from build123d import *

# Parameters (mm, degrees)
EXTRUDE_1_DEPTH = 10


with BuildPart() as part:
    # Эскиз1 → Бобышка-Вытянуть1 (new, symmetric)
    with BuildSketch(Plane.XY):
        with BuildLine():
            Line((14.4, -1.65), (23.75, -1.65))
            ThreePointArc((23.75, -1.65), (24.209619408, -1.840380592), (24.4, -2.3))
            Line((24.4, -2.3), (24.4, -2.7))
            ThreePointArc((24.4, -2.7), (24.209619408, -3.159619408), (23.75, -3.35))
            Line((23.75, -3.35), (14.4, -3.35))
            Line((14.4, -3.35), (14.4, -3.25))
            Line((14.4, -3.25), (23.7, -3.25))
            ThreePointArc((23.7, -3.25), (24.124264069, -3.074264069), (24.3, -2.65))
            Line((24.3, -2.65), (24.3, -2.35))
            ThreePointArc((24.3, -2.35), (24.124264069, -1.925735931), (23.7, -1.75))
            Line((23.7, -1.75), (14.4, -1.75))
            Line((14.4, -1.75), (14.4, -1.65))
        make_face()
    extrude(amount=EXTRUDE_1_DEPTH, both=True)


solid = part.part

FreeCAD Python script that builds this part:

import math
import FreeCAD as App
import Part
import Sketcher
from FreeCAD import Vector
Q = App.Units.Quantity

doc = App.newDocument("Part")
body = doc.addObject("PartDesign::Body", "Body")

# Sketch on XY plane
sketch1 = doc.addObject("Sketcher::SketchObject", "Sketch")
body.addObject(sketch1)
sketch1.AttachmentSupport = (doc.XY_Plane, [""])
sketch1.MapMode = "FlatFace"
sketch1.addGeometry(Part.LineSegment(Vector(23.75, -1.65, 0), Vector(14.4, -1.65, 0)), False)
sketch1.addGeometry(Part.LineSegment(Vector(14.4, -1.65, 0), Vector(14.4, -1.75, 0)), False)
sketch1.addGeometry(Part.LineSegment(Vector(14.4, -1.75, 0), Vector(23.7, -1.75, 0)), False)
sketch1.addGeometry(Part.ArcOfCircle(Part.Circle(Vector(23.7, -2.35, 0), Vector(0, 0, 1), 0.6), math.radians(0), math.radians(90)), False)
sketch1.addGeometry(Part.LineSegment(Vector(24.3, -2.35, 0), Vector(24.3, -2.65, 0)), False)
sketch1.addGeometry(Part.ArcOfCircle(Part.Circle(Vector(23.7, -2.65, 0), Vector(0, 0, 1), 0.6), math.radians(-90), math.radians(0)), False)
sketch1.addGeometry(Part.LineSegment(Vector(23.7, -3.25, 0), Vector(14.4, -3.25, 0)), False)
sketch1.addGeometry(Part.LineSegment(Vector(14.4, -3.25, 0), Vector(14.4, -3.35, 0)), False)
sketch1.addGeometry(Part.LineSegment(Vector(14.4, -3.35, 0), Vector(23.75, -3.35, 0)), False)
sketch1.addGeometry(Part.ArcOfCircle(Part.Circle(Vector(23.75, -2.7, 0), Vector(0, 0, 1), 0.65), math.radians(-90), math.radians(0)), False)
sketch1.addGeometry(Part.LineSegment(Vector(24.4, -2.7, 0), Vector(24.4, -2.3, 0)), False)
sketch1.addGeometry(Part.ArcOfCircle(Part.Circle(Vector(23.75, -2.3, 0), Vector(0, 0, 1), 0.65), math.radians(0), math.radians(90)), False)
sketch1.addConstraint(Sketcher.Constraint("Coincident", 0, 2, 1, 1))
sketch1.addConstraint(Sketcher.Constraint("Coincident", 1, 2, 2, 1))
sketch1.addConstraint(Sketcher.Constraint("Tangent", 2, 2, 3, 2))
sketch1.addConstraint(Sketcher.Constraint("Tangent", 3, 1, 4, 1))
sketch1.addConstraint(Sketcher.Constraint("Tangent", 4, 2, 5, 2))
sketch1.addConstraint(Sketcher.Constraint("Tangent", 5, 1, 6, 1))
sketch1.addConstraint(Sketcher.Constraint("Coincident", 6, 2, 7, 1))
sketch1.addConstraint(Sketcher.Constraint("Coincident", 7, 2, 8, 1))
sketch1.addConstraint(Sketcher.Constraint("Tangent", 8, 2, 9, 1))
sketch1.addConstraint(Sketcher.Constraint("Tangent", 9, 2, 10, 1))
sketch1.addConstraint(Sketcher.Constraint("Tangent", 10, 2, 11, 1))
sketch1.addConstraint(Sketcher.Constraint("Tangent", 11, 2, 0, 1))
sketch1.addConstraint(Sketcher.Constraint("Horizontal", 0))
sketch1.addConstraint(Sketcher.Constraint("Vertical", 1))
sketch1.addConstraint(Sketcher.Constraint("Horizontal", 2))
sketch1.addConstraint(Sketcher.Constraint("Vertical", 4))
sketch1.addConstraint(Sketcher.Constraint("Horizontal", 6))
sketch1.addConstraint(Sketcher.Constraint("Vertical", 7))
sketch1.addConstraint(Sketcher.Constraint("Horizontal", 8))
sketch1.addConstraint(Sketcher.Constraint("Vertical", 10))
sketch1.addConstraint(Sketcher.Constraint("Equal", 3, 5))
sketch1.addConstraint(Sketcher.Constraint("Equal", 9, 11))
sketch1.addConstraint(Sketcher.Constraint("Vertical", 1, 2, 6, 2))
sketch1.addConstraint(Sketcher.Constraint("Equal", 1, 7))
sketch1.addConstraint(Sketcher.Constraint("Radius", 3, Q("0.6 mm")))
sketch1.addConstraint(Sketcher.Constraint("Radius", 9, Q("0.65 mm")))
sketch1.addConstraint(Sketcher.Constraint("DistanceX", 2, 1, 2, 2, Q("9.3 mm")))
sketch1.addConstraint(Sketcher.Constraint("DistanceY", 1, 2, 1, 1, Q("0.1 mm")))
sketch1.addConstraint(Sketcher.Constraint("DistanceY", 4, 2, 4, 1, Q("0.3 mm")))
sketch1.addConstraint(Sketcher.Constraint("DistanceX", 0, 2, 0, 1, Q("9.35 mm")))
sketch1.addConstraint(Sketcher.Constraint("DistanceX", -1, 1, 3, 3, Q("23.7 mm")))
sketch1.addConstraint(Sketcher.Constraint("DistanceY", 9, 3, -1, 1, Q("2.7 mm")))
pad1 = doc.addObject("PartDesign::Pad", "Pad")
body.addObject(pad1)
pad1.Profile = sketch1
pad1.Length = 20
pad1.Midplane = True

doc.recompute()
